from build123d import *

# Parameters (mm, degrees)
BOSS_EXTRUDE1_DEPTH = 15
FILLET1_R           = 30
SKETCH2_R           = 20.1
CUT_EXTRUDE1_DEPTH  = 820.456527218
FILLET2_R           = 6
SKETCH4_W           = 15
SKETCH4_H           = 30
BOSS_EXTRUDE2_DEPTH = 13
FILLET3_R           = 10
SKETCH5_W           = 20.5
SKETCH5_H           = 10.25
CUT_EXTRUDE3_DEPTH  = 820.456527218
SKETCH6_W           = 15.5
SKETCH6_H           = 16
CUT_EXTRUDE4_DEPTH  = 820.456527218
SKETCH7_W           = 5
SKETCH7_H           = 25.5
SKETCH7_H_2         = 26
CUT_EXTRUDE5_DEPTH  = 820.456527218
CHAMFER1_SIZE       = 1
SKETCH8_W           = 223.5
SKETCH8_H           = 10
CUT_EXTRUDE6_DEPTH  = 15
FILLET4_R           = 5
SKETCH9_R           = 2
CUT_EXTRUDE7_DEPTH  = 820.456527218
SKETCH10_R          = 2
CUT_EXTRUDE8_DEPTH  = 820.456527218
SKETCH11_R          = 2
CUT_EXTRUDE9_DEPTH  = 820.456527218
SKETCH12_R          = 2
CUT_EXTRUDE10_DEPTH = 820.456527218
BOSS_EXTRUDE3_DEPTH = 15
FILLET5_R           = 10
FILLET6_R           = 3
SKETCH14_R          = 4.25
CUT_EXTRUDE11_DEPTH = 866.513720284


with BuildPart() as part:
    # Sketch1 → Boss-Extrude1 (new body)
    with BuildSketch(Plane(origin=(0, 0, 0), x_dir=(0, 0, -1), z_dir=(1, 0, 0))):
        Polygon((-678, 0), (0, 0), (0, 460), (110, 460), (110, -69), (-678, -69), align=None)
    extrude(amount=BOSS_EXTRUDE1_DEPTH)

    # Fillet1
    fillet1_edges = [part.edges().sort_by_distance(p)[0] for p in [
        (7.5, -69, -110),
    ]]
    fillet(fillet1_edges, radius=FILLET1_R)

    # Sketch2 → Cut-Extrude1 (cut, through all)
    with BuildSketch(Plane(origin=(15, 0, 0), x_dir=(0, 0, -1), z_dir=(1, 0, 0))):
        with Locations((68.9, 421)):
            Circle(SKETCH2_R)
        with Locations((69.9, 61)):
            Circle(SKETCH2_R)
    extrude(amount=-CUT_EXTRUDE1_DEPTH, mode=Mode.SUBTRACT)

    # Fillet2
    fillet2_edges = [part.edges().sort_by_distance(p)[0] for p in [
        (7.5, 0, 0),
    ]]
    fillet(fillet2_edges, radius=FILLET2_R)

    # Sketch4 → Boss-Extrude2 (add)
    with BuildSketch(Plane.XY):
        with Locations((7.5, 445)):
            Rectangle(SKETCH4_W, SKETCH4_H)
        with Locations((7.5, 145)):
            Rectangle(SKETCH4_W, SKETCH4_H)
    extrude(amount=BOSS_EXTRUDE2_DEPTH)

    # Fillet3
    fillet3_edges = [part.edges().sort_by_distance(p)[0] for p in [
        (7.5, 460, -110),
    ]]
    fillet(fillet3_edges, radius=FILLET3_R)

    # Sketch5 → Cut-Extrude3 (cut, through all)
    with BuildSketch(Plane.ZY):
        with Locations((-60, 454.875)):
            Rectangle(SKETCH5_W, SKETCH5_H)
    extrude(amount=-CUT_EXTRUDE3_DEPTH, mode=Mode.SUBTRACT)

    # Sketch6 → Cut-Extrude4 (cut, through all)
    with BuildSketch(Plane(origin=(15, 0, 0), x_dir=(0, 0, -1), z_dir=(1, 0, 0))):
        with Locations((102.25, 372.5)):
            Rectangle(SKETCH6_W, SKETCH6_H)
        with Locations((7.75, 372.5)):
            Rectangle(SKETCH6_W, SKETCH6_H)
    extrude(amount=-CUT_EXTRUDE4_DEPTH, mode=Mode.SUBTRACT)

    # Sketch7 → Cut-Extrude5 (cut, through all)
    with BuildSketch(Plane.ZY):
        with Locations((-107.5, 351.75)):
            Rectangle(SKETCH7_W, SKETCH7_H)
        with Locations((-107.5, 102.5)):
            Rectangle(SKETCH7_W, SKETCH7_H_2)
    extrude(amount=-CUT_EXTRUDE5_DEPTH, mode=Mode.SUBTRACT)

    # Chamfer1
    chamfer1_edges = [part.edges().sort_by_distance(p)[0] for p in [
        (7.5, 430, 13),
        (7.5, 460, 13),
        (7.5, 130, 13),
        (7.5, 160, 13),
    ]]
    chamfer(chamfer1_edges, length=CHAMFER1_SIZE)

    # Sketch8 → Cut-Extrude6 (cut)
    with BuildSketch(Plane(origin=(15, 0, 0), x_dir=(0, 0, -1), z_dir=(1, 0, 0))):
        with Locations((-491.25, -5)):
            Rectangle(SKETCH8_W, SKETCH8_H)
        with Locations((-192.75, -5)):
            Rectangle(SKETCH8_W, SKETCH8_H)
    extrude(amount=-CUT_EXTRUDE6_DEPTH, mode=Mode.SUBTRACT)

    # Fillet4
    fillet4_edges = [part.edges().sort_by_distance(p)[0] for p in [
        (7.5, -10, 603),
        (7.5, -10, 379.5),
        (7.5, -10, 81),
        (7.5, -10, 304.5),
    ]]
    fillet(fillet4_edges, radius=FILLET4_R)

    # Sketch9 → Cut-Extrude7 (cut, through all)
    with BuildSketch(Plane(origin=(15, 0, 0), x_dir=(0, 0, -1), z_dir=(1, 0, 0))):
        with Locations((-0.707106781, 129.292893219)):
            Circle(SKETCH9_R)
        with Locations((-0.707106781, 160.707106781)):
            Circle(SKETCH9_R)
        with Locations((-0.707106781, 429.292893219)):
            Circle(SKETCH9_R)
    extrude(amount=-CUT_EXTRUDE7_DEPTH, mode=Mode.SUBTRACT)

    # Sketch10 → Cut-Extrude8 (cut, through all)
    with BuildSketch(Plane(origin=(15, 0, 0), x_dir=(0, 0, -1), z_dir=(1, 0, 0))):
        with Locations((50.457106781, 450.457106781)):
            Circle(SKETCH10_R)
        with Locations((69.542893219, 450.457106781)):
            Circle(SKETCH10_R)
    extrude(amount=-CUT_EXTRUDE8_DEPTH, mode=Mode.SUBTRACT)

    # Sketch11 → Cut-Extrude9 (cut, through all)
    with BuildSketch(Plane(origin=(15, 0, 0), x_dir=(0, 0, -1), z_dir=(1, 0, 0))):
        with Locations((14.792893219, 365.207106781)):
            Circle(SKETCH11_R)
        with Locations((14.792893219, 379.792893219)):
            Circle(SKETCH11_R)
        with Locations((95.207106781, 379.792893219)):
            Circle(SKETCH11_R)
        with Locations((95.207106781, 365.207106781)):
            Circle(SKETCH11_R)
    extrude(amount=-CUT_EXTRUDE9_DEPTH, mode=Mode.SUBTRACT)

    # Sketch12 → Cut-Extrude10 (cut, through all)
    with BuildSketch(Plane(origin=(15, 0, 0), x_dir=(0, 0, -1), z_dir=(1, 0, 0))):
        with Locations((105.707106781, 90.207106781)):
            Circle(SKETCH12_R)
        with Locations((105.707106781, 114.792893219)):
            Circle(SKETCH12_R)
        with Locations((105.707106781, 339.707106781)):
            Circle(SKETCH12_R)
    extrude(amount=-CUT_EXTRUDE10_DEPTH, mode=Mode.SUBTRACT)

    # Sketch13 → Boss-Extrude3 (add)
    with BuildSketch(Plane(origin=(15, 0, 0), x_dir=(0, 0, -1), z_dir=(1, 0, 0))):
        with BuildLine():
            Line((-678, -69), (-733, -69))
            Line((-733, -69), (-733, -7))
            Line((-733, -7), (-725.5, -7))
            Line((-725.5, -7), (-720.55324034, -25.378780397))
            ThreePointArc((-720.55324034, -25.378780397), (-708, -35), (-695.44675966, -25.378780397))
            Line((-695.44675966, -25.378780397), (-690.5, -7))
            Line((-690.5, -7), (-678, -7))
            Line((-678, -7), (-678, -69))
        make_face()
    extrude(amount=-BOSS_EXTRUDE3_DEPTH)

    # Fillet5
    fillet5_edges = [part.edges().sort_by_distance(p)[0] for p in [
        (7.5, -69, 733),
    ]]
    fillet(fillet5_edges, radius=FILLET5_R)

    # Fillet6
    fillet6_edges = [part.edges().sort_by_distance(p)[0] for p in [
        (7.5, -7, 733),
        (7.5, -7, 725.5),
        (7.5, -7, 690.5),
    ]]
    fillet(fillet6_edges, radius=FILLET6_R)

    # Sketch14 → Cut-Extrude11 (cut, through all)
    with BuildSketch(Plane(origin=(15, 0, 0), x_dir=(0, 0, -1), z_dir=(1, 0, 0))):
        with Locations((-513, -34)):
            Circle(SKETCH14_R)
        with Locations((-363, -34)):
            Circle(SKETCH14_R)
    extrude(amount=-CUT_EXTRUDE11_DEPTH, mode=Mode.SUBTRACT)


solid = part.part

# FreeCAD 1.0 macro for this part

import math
import FreeCAD as App
import Part
import Sketcher
from FreeCAD import Vector
Q = App.Units.Quantity


def edges_at(feature, points):
    """Names of the edges that pass closest to the given points."""
    edges = feature.Shape.Edges
    near = lambda p: min(range(len(edges)), key=lambda i: edges[i].distToShape(Part.Vertex(*p))[0])
    return sorted({f"Edge{near(p) + 1}" for p in points})


def add_polygon(sketch, points):
    """Adds a closed chain of lines whose ends are joined by coincident constraints."""
    first, n = sketch.GeometryCount, len(points)
    for a, b in zip(points, points[1:] + points[:1]):
        sketch.addGeometry(Part.LineSegment(App.Vector(*a, 0), App.Vector(*b, 0)), False)
    for i in range(n):
        sketch.addConstraint(Sketcher.Constraint("Coincident", first + i, 2, first + (i + 1) % n, 1))

doc = App.newDocument("Part")
params = doc.addObject("Spreadsheet::Sheet", "Params")
for row, (alias, value) in enumerate([
    ("sketch1_width", "69 mm"),
    ("sketch1_width2", "529 mm"),
    ("sketch1_height", "678 mm"),
    ("sketch1_height2", "788 mm"),
    ("pad1_length", "15 mm"),
    ("fillet_radius", "30 mm"),
    ("sketch2_diameter", "40.2 mm"),
    ("fillet2_radius", "6 mm"),
    ("sketch3_width", "15 mm"),
    ("sketch3_height", "30 mm"),
    ("pad2_length", "13 mm"),
    ("fillet3_radius", "10 mm"),
    ("sketch4_height", "20.5 mm"),
    ("sketch4_width", "10.25 mm"),
    ("sketch5_width", "16 mm"),
    ("sketch5_height", "15.5 mm"),
    ("sketch6_width", "26 mm"),
    ("sketch6_height", "5 mm"),
    ("sketch6_width2", "25.5 mm"),
    ("chamfer_size", "1 mm"),
    ("sketch7_width", "10 mm"),
    ("sketch7_height", "223.5 mm"),
    ("pocket5_length", "15 mm"),
    ("fillet4_radius", "5 mm"),
    ("sketch8_diameter", "4 mm"),
    ("sketch9_diameter", "4 mm"),
    ("sketch10_diameter", "4 mm"),
    ("sketch11_diameter", "4 mm"),
    ("sketch12_radius", "13 mm"),
    ("sketch12_width", "62 mm"),
    ("sketch12_height", "55 mm"),
    ("sketch12_height2", "12.5 mm"),
    ("sketch12_height3", "7.5 mm"),
    ("pad3_length", "15 mm"),
    ("fillet5_radius", "10 mm"),
    ("fillet6_radius", "3 mm"),
    ("sketch13_diameter", "8.5 mm"),
], start=1):
    params.set(f"A{row}", alias)
    params.set(f"B{row}", "=" + value)
    params.setAlias(f"B{row}", alias)

body = doc.addObject("PartDesign::Body", "Body")

sketch1 = body.newObject("Sketcher::SketchObject", "Sketch")
sketch1.AttachmentSupport = (doc.getObject("YZ_Plane"), [""])
sketch1.MapMode = "FlatFace"
add_polygon(sketch1, [(0, 0), (0, 678), (-69, 678), (-69, -110), (460, -110), (460, 0)])
sketch1.addConstraint(Sketcher.Constraint("Vertical", 0))
sketch1.addConstraint(Sketcher.Constraint("Horizontal", 1))
sketch1.addConstraint(Sketcher.Constraint("Vertical", 2))
sketch1.addConstraint(Sketcher.Constraint("Horizontal", 3))
sketch1.addConstraint(Sketcher.Constraint("Vertical", 4))
sketch1.addConstraint(Sketcher.Constraint("Horizontal", 5))
sketch1.addConstraint(Sketcher.Constraint("Coincident", 5, 2, -1, 1))
sketch1.addConstraint(Sketcher.Constraint("DistanceX", 1, 2, 1, 1, Q("69 mm")))
sketch1.addConstraint(Sketcher.Constraint("DistanceX", 3, 1, 3, 2, Q("529 mm")))
sketch1.addConstraint(Sketcher.Constraint("DistanceY", 0, 1, 0, 2, Q("678 mm")))
sketch1.addConstraint(Sketcher.Constraint("DistanceY", 2, 2, 2, 1, Q("788 mm")))
sketch1.setExpression("Constraints[13]", "Params.sketch1_width")
sketch1.setExpression("Constraints[14]", "Params.sketch1_width2")
sketch1.setExpression("Constraints[15]", "Params.sketch1_height")
sketch1.setExpression("Constraints[16]", "Params.sketch1_height2")
pad1 = body.newObject("PartDesign::Pad", "Pad")
pad1.Profile = sketch1
pad1.setExpression("Length", "Params.pad1_length")
doc.recompute()

fillet = body.newObject("PartDesign::Fillet", "Fillet")
fillet.Base = (pad1, edges_at(pad1, [(7.5, -69, -110)]))
fillet.setExpression("Radius", "Params.fillet_radius")

sketch2 = body.newObject("Sketcher::SketchObject", "Sketch001")
sketch2.AttachmentSupport = (doc.getObject("YZ_Plane"), [""])
sketch2.MapMode = "FlatFace"
sketch2.AttachmentOffset = App.Placement(Vector(0, 0, 15), App.Rotation())
sketch2.addGeometry(Part.Circle(Vector(421, -69, 0), Vector(0, 0, 1), 20), False)
sketch2.addGeometry(Part.Circle(Vector(61, -70, 0), Vector(0, 0, 1), 20), False)
sketch2.addConstraint(Sketcher.Constraint("Equal", 0, 1))
sketch2.addConstraint(Sketcher.Constraint("Diameter", 0, Q("40.2 mm")))
sketch2.addConstraint(Sketcher.Constraint("DistanceX", -1, 1, 0, 3, Q("421 mm")))
sketch2.addConstraint(Sketcher.Constraint("DistanceX", -1, 1, 1, 3, Q("61 mm")))
sketch2.addConstraint(Sketcher.Constraint("DistanceY", 1, 3, 0, 3, Q("1 mm")))
sketch2.addConstraint(Sketcher.Constraint("DistanceY", 0, 3, -1, 1, Q("68.9 mm")))
sketch2.setExpression("Constraints[1]", "Params.sketch2_diameter")
pocket1 = body.newObject("PartDesign::Pocket", "Pocket")
pocket1.Profile = sketch2
pocket1.Type = "ThroughAll"
doc.recompute()

fillet2 = body.newObject("PartDesign::Fillet", "Fillet001")
fillet2.Base = (pocket1, edges_at(pocket1, [(7.5, 0, 0)]))
fillet2.setExpression("Radius", "Params.fillet2_radius")

sketch3 = body.newObject("Sketcher::SketchObject", "Sketch002")
sketch3.AttachmentSupport = (doc.getObject("XY_Plane"), [""])
sketch3.MapMode = "FlatFace"
add_polygon(sketch3, [(0, 460), (0, 430), (15, 430), (15, 460)])
add_polygon(sketch3, [(0, 160), (0, 130), (15, 130), (15, 160)])
sketch3.addConstraint(Sketcher.Constraint("Vertical", 0))
sketch3.addConstraint(Sketcher.Constraint("Horizontal", 1))
sketch3.addConstraint(Sketcher.Constraint("Vertical", 2))
sketch3.addConstraint(Sketcher.Constraint("Horizontal", 3))
sketch3.addConstraint(Sketcher.Constraint("Vertical", 4))
sketch3.addConstraint(Sketcher.Constraint("Horizontal", 5))
sketch3.addConstraint(Sketcher.Constraint("Vertical", 6))
sketch3.addConstraint(Sketcher.Constraint("Horizontal", 7))
sketch3.addConstraint(Sketcher.Constraint("PointOnObject", 0, 2, -2))
sketch3.addConstraint(Sketcher.Constraint("PointOnObject", 4, 2, -2))
sketch3.addConstraint(Sketcher.Constraint("Vertical", 2, 2, 5, 2))
sketch3.addConstraint(Sketcher.Constraint("Equal", 2, 4))
sketch3.addConstraint(Sketcher.Constraint("DistanceX", 1, 1, 1, 2, Q("15 mm")))
sketch3.addConstraint(Sketcher.Constraint("DistanceY", 0, 2, 0, 1, Q("30 mm")))
sketch3.addConstraint(Sketcher.Constraint("DistanceY", -1, 1, 0, 2, Q("430 mm")))
sketch3.addConstraint(Sketcher.Constraint("DistanceY", -1, 1, 4, 2, Q("130 mm")))
sketch3.setExpression("Constraints[20]", "Params.sketch3_width")
sketch3.setExpression("Constraints[21]", "Params.sketch3_height")
pad2 = body.newObject("PartDesign::Pad", "Pad001")
pad2.Profile = sketch3
pad2.setExpression("Length", "Params.pad2_length")
doc.recompute()

fillet3 = body.newObject("PartDesign::Fillet", "Fillet002")
fillet3.Base = (pad2, edges_at(pad2, [(7.5, 460, -110)]))
fillet3.setExpression("Radius", "Params.fillet3_radius")

sketch4 = body.newObject("Sketcher::SketchObject", "Sketch003")
sketch4.AttachmentSupport = (doc.getObject("YZ_Plane"), [""])
sketch4.MapMode = "FlatFace"
add_polygon(sketch4, [(460, -70), (450, -70), (450, -50), (460, -50)])
sketch4.addConstraint(Sketcher.Constraint("Horizontal", 0))
sketch4.addConstraint(Sketcher.Constraint("Vertical", 1))
sketch4.addConstraint(Sketcher.Constraint("Horizontal", 2))
sketch4.addConstraint(Sketcher.Constraint("Vertical", 3))
sketch4.addConstraint(Sketcher.Constraint("DistanceY", 1, 1, 1, 2, Q("20.5 mm")))
sketch4.addConstraint(Sketcher.Constraint("DistanceX", -1, 1, 2, 2, Q("460 mm")))
sketch4.addConstraint(Sketcher.Constraint("DistanceX", 0, 2, 0, 1, Q("10.25 mm")))
sketch4.addConstraint(Sketcher.Constraint("DistanceY", 0, 2, -1, 1, Q("70.25 mm")))
sketch4.setExpression("Constraints[8]", "Params.sketch4_height")
sketch4.setExpression("Constraints[10]", "Params.sketch4_width")
pocket2 = body.newObject("PartDesign::Pocket", "Pocket001")
pocket2.Profile = sketch4
pocket2.Type = "ThroughAll"
pocket2.Reversed = True

sketch5 = body.newObject("Sketcher::SketchObject", "Sketch004")
sketch5.AttachmentSupport = (doc.getObject("YZ_Plane"), [""])
sketch5.MapMode = "FlatFace"
sketch5.AttachmentOffset = App.Placement(Vector(0, 0, 15), App.Rotation())
add_polygon(sketch5, [(380, -94), (364, -94), (364, -110), (380, -110)])
add_polygon(sketch5, [(380, 0), (364, 0), (364, -16), (380, -16)])
sketch5.addConstraint(Sketcher.Constraint("Horizontal", 0))
sketch5.addConstraint(Sketcher.Constraint("Vertical", 1))
sketch5.addConstraint(Sketcher.Constraint("Horizontal", 2))
sketch5.addConstraint(Sketcher.Constraint("Vertical", 3))
sketch5.addConstraint(Sketcher.Constraint("Horizontal", 4))
sketch5.addConstraint(Sketcher.Constraint("Vertical", 5))
sketch5.addConstraint(Sketcher.Constraint("Horizontal", 6))
sketch5.addConstraint(Sketcher.Constraint("Vertical", 7))
sketch5.addConstraint(Sketcher.Constraint("PointOnObject", 4, 2, -1))
sketch5.addConstraint(Sketcher.Constraint("Vertical", 1, 2, 4, 2))
sketch5.addConstraint(Sketcher.Constraint("Vertical", 3, 2, 6, 2))
sketch5.addConstraint(Sketcher.Constraint("Equal", 3, 5))
sketch5.addConstraint(Sketcher.Constraint("DistanceX", 0, 2, 0, 1, Q("16 mm")))
sketch5.addConstraint(Sketcher.Constraint("DistanceY", 1, 2, 1, 1, Q("15.5 mm")))
sketch5.addConstraint(Sketcher.Constraint("DistanceY", 1, 2, -1, 1, Q("110 mm")))
sketch5.addConstraint(Sketcher.Constraint("DistanceX", -1, 1, 0, 2, Q("364.5 mm")))
sketch5.setExpression("Constraints[20]", "Params.sketch5_width")
sketch5.setExpression("Constraints[21]", "Params.sketch5_height")
pocket3 = body.newObject("PartDesign::Pocket", "Pocket002")
pocket3.Profile = sketch5
pocket3.Type = "ThroughAll"

sketch6 = body.newObject("Sketcher::SketchObject", "Sketch005")
sketch6.AttachmentSupport = (doc.getObject("YZ_Plane"), [""])
sketch6.MapMode = "FlatFace"
add_polygon(sketch6, [(364, -110), (339, -110), (339, -105), (364, -105)])
add_polygon(sketch6, [(116, -110), (90, -110), (90, -105), (116, -105)])
sketch6.addConstraint(Sketcher.Constraint("Horizontal", 0))
sketch6.addConstraint(Sketcher.Constraint("Vertical", 1))
sketch6.addConstraint(Sketcher.Constraint("Horizontal", 2))
sketch6.addConstraint(Sketcher.Constraint("Vertical", 3))
sketch6.addConstraint(Sketcher.Constraint("Horizontal", 4))
sketch6.addConstraint(Sketcher.Constraint("Vertical", 5))
sketch6.addConstraint(Sketcher.Constraint("Horizontal", 6))
sketch6.addConstraint(Sketcher.Constraint("Vertical", 7))
sketch6.addConstraint(Sketcher.Constraint("Horizontal", 3, 2, 4, 2))
sketch6.addConstraint(Sketcher.Constraint("Horizontal", 2, 2, 5, 2))
sketch6.addConstraint(Sketcher.Constraint("DistanceX", 4, 2, 4, 1, Q("26 mm")))
sketch6.addConstraint(Sketcher.Constraint("DistanceY", 1, 1, 1, 2, Q("5 mm")))
sketch6.addConstraint(Sketcher.Constraint("DistanceX", 0, 2, 0, 1, Q("25.5 mm")))
sketch6.addConstraint(Sketcher.Constraint("DistanceX", -1, 1, 0, 2, Q("339 mm")))
sketch6.addConstraint(Sketcher.Constraint("DistanceY", 0, 2, -1, 1, Q("110 mm")))
sketch6.addConstraint(Sketcher.Constraint("DistanceX", 4, 2, 3, 2, Q("275 mm")))
sketch6.setExpression("Constraints[18]", "Params.sketch6_width")
sketch6.setExpression("Constraints[19]", "Params.sketch6_height")
sketch6.setExpression("Constraints[20]", "Params.sketch6_width2")
pocket4 = body.newObject("PartDesign::Pocket", "Pocket003")
pocket4.Profile = sketch6
pocket4.Type = "ThroughAll"
pocket4.Reversed = True
doc.recompute()

chamfer = body.newObject("PartDesign::Chamfer", "Chamfer")
chamfer.Base = (pocket4, edges_at(pocket4, [
    (7.5, 430, 13),
    (7.5, 460, 13),
    (7.5, 130, 13),
    (7.5, 160, 13),
]))
chamfer.setExpression("Size", "Params.chamfer_size")

sketch7 = body.newObject("Sketcher::SketchObject", "Sketch006")
sketch7.AttachmentSupport = (doc.getObject("YZ_Plane"), [""])
sketch7.MapMode = "FlatFace"
sketch7.AttachmentOffset = App.Placement(Vector(0, 0, 15), App.Rotation())
add_polygon(sketch7, [(0, 603), (-10, 603), (-10, 380), (0, 380)])
add_polygon(sketch7, [(0, 304), (-10, 304), (-10, 81), (0, 81)])
sketch7.addConstraint(Sketcher.Constraint("Horizontal", 0))
sketch7.addConstraint(Sketcher.Constraint("Vertical", 1))
sketch7.addConstraint(Sketcher.Constraint("Horizontal", 2))
sketch7.addConstraint(Sketcher.Constraint("Vertical", 3))
sketch7.addConstraint(Sketcher.Constraint("Horizontal", 4))
sketch7.addConstraint(Sketcher.Constraint("Vertical", 5))
sketch7.addConstraint(Sketcher.Constraint("Horizontal", 6))
sketch7.addConstraint(Sketcher.Constraint("Vertical", 7))
sketch7.addConstraint(Sketcher.Constraint("PointOnObject", 2, 2, -2))
sketch7.addConstraint(Sketcher.Constraint("PointOnObject", 6, 2, -2))
sketch7.addConstraint(Sketcher.Constraint("Vertical", 1, 2, 4, 2))
sketch7.addConstraint(Sketcher.Constraint("Equal", 3, 5))
sketch7.addConstraint(Sketcher.Constraint("DistanceX", 0, 2, 0, 1, Q("10 mm")))
sketch7.addConstraint(Sketcher.Constraint("DistanceY", 1, 2, 1, 1, Q("223.5 mm")))
sketch7.addConstraint(Sketcher.Constraint("DistanceY", -1, 1, 0, 2, Q("603 mm")))
sketch7.addConstraint(Sketcher.Constraint("DistanceY", -1, 1, 5, 2, Q("81 mm")))
sketch7.setExpression("Constraints[20]", "Params.sketch7_width")
sketch7.setExpression("Constraints[21]", "Params.sketch7_height")
pocket5 = body.newObject("PartDesign::Pocket", "Pocket004")
pocket5.Profile = sketch7
pocket5.setExpression("Length", "Params.pocket5_length")
doc.recompute()

fillet4 = body.newObject("PartDesign::Fillet", "Fillet003")
fillet4.Base = (pocket5, edges_at(pocket5, [
    (7.5, -10, 603),
    (7.5, -10, 379.5),
    (7.5, -10, 81),
    (7.5, -10, 304.5),
]))
fillet4.setExpression("Radius", "Params.fillet4_radius")

sketch8 = body.newObject("Sketcher::SketchObject", "Sketch007")
sketch8.AttachmentSupport = (doc.getObject("YZ_Plane"), [""])
sketch8.MapMode = "FlatFace"
sketch8.AttachmentOffset = App.Placement(Vector(0, 0, 15), App.Rotation())
sketch8.addGeometry(Part.Circle(Vector(129.3, 0.7, 0), Vector(0, 0, 1), 2), False)
sketch8.addGeometry(Part.Circle(Vector(160.7, 0.7, 0), Vector(0, 0, 1), 2), False)
sketch8.addGeometry(Part.Circle(Vector(429.3, 0.7, 0), Vector(0, 0, 1), 2), False)
sketch8.addConstraint(Sketcher.Constraint("Equal", 0, 1))
sketch8.addConstraint(Sketcher.Constraint("Equal", 1, 2))
sketch8.addConstraint(Sketcher.Constraint("Horizontal", 0, 3, 1, 3))
sketch8.addConstraint(Sketcher.Constraint("Horizontal", 1, 3, 2, 3))
sketch8.addConstraint(Sketcher.Constraint("Diameter", 0, Q("4 mm")))
sketch8.addConstraint(Sketcher.Constraint("DistanceX", 0, 3, 2, 3, Q("300 mm")))
sketch8.addConstraint(Sketcher.Constraint("DistanceX", -1, 1, 0, 3, Q("129.292893 mm")))
sketch8.addConstraint(Sketcher.Constraint("DistanceY", -1, 1, 0, 3, Q("0.707107 mm")))
sketch8.addConstraint(Sketcher.Constraint("DistanceX", -1, 1, 1, 3, Q("160.707107 mm")))
sketch8.setExpression("Constraints[4]", "Params.sketch8_diameter")
pocket6 = body.newObject("PartDesign::Pocket", "Pocket005")
pocket6.Profile = sketch8
pocket6.Type = "ThroughAll"

sketch9 = body.newObject("Sketcher::SketchObject", "Sketch008")
sketch9.AttachmentSupport = (doc.getObject("YZ_Plane"), [""])
sketch9.MapMode = "FlatFace"
sketch9.AttachmentOffset = App.Placement(Vector(0, 0, 15), App.Rotation())
sketch9.addGeometry(Part.Circle(Vector(450.5, -50.5, 0), Vector(0, 0, 1), 2), False)
sketch9.addGeometry(Part.Circle(Vector(450.5, -69.5, 0), Vector(0, 0, 1), 2), False)
sketch9.addConstraint(Sketcher.Constraint("Equal", 0, 1))
sketch9.addConstraint(Sketcher.Constraint("Vertical", 0, 3, 1, 3))
sketch9.addConstraint(Sketcher.Constraint("Diameter", 0, Q("4 mm")))
sketch9.addConstraint(Sketcher.Constraint("DistanceX", -1, 1, 0, 3, Q("450.457107 mm")))
sketch9.addConstraint(Sketcher.Constraint("DistanceY", 0, 3, -1, 1, Q("50.457107 mm")))
sketch9.addConstraint(Sketcher.Constraint("DistanceY", 1, 3, -1, 1, Q("69.542893 mm")))
sketch9.setExpression("Constraints[2]", "Params.sketch9_diameter")
pocket7 = body.newObject("PartDesign::Pocket", "Pocket006")
pocket7.Profile = sketch9
pocket7.Type = "ThroughAll"

sketch10 = body.newObject("Sketcher::SketchObject", "Sketch009")
sketch10.AttachmentSupport = (doc.getObject("YZ_Plane"), [""])
sketch10.MapMode = "FlatFace"
sketch10.AttachmentOffset = App.Placement(Vector(0, 0, 15), App.Rotation())
sketch10.addGeometry(Part.Circle(Vector(365.2, -14.8, 0), Vector(0, 0, 1), 2), False)
sketch10.addGeometry(Part.Circle(Vector(379.8, -14.8, 0), Vector(0, 0, 1), 2), False)
sketch10.addGeometry(Part.Circle(Vector(379.8, -95.2, 0), Vector(0, 0, 1), 2), False)
sketch10.addGeometry(Part.Circle(Vector(365.2, -95.2, 0), Vector(0, 0, 1), 2), False)
sketch10.addConstraint(Sketcher.Constraint("Equal", 0, 1))
sketch10.addConstraint(Sketcher.Constraint("Equal", 1, 2))
sketch10.addConstraint(Sketcher.Constraint("Equal", 2, 3))
sketch10.addConstraint(Sketcher.Constraint("Horizontal", 0, 3, 1, 3))
sketch10.addConstraint(Sketcher.Constraint("Horizontal", 2, 3, 3, 3))
sketch10.addConstraint(Sketcher.Constraint("Vertical", 1, 3, 2, 3))
sketch10.addConstraint(Sketcher.Constraint("Vertical", 0, 3, 3, 3))
sketch10.addConstraint(Sketcher.Constraint("Diameter", 0, Q("4 mm")))
sketch10.addConstraint(Sketcher.Constraint("DistanceX", -1, 1, 0, 3, Q("365.207107 mm")))
sketch10.addConstraint(Sketcher.Constraint("DistanceY", 0, 3, -1, 1, Q("14.792893 mm")))
sketch10.addConstraint(Sketcher.Constraint("DistanceX", -1, 1, 1, 3, Q("379.792893 mm")))
sketch10.addConstraint(Sketcher.Constraint("DistanceY", 2, 3, -1, 1, Q("95.207107 mm")))
sketch10.setExpression("Constraints[7]", "Params.sketch10_diameter")
pocket8 = body.newObject("PartDesign::Pocket", "Pocket007")
pocket8.Profile = sketch10
pocket8.Type = "ThroughAll"

sketch11 = body.newObject("Sketcher::SketchObject", "Sketch010")
sketch11.AttachmentSupport = (doc.getObject("YZ_Plane"), [""])
sketch11.MapMode = "FlatFace"
sketch11.AttachmentOffset = App.Placement(Vector(0, 0, 15), App.Rotation())
sketch11.addGeometry(Part.Circle(Vector(90.2, -105.7, 0), Vector(0, 0, 1), 2), False)
sketch11.addGeometry(Part.Circle(Vector(114.8, -105.7, 0), Vector(0, 0, 1), 2), False)
sketch11.addGeometry(Part.Circle(Vector(339.7, -105.7, 0), Vector(0, 0, 1), 2), False)
sketch11.addConstraint(Sketcher.Constraint("Equal", 0, 1))
sketch11.addConstraint(Sketcher.Constraint("Equal", 1, 2))
sketch11.addConstraint(Sketcher.Constraint("Horizontal", 0, 3, 1, 3))
sketch11.addConstraint(Sketcher.Constraint("Horizontal", 1, 3, 2, 3))
sketch11.addConstraint(Sketcher.Constraint("Diameter", 0, Q("4 mm")))
sketch11.addConstraint(Sketcher.Constraint("DistanceX", 0, 3, 2, 3, Q("249.5 mm")))
sketch11.addConstraint(Sketcher.Constraint("DistanceX", -1, 1, 0, 3, Q("90.207107 mm")))
sketch11.addConstraint(Sketcher.Constraint("DistanceY", 0, 3, -1, 1, Q("105.707107 mm")))
sketch11.addConstraint(Sketcher.Constraint("DistanceX", -1, 1, 1, 3, Q("114.792893 mm")))
sketch11.setExpression("Constraints[4]", "Params.sketch11_diameter")
pocket9 = body.newObject("PartDesign::Pocket", "Pocket008")
pocket9.Profile = sketch11
pocket9.Type = "ThroughAll"

sketch12 = body.newObject("Sketcher::SketchObject", "Sketch011")
sketch12.AttachmentSupport = (doc.getObject("YZ_Plane"), [""])
sketch12.MapMode = "FlatFace"
sketch12.AttachmentOffset = App.Placement(Vector(0, 0, 15), App.Rotation())
sketch12.addGeometry(Part.LineSegment(Vector(-69, 733, 0), Vector(-69, 678, 0)), False)
sketch12.addGeometry(Part.LineSegment(Vector(-69, 678, 0), Vector(-7, 678, 0)), False)
sketch12.addGeometry(Part.LineSegment(Vector(-7, 678, 0), Vector(-7, 690, 0)), False)
sketch12.addGeometry(Part.LineSegment(Vector(-7, 690, 0), Vector(-25, 695, 0)), False)
sketch12.addGeometry(Part.ArcOfCircle(Part.Circle(Vector(-22, 708, 0), Vector(0, 0, 1), 13), math.radians(105), math.radians(255)), False)
sketch12.addGeometry(Part.LineSegment(Vector(-25, 721, 0), Vector(-7, 726, 0)), False)
sketch12.addGeometry(Part.LineSegment(Vector(-7, 726, 0), Vector(-7, 733, 0)), False)
sketch12.addGeometry(Part.LineSegment(Vector(-7, 733, 0), Vector(-69, 733, 0)), False)
sketch12.addConstraint(Sketcher.Constraint("Coincident", 0, 2, 1, 1))
sketch12.addConstraint(Sketcher.Constraint("Coincident", 1, 2, 2, 1))
sketch12.addConstraint(Sketcher.Constraint("Coincident", 2, 2, 3, 1))
sketch12.addConstraint(Sketcher.Constraint("Tangent", 3, 2, 4, 2))
sketch12.addConstraint(Sketcher.Constraint("Tangent", 4, 1, 5, 1))
sketch12.addConstraint(Sketcher.Constraint("Coincident", 5, 2, 6, 1))
sketch12.addConstraint(Sketcher.Constraint("Coincident", 6, 2, 7, 1))
sketch12.addConstraint(Sketcher.Constraint("Coincident", 7, 2, 0, 1))
sketch12.addConstraint(Sketcher.Constraint("Vertical", 0))
sketch12.addConstraint(Sketcher.Constraint("Horizontal", 1))
sketch12.addConstraint(Sketcher.Constraint("Vertical", 2))
sketch12.addConstraint(Sketcher.Constraint("Vertical", 6))
sketch12.addConstraint(Sketcher.Constraint("Horizontal", 7))
sketch12.addConstraint(Sketcher.Constraint("Vertical", 3, 2, 4, 1))
sketch12.addConstraint(Sketcher.Constraint("Vertical", 2, 2, 5, 2))
sketch12.addConstraint(Sketcher.Constraint("Radius", 4, Q("13 mm")))
sketch12.addConstraint(Sketcher.Constraint("DistanceX", 1, 1, 1, 2, Q("62 mm")))
sketch12.addConstraint(Sketcher.Constraint("DistanceY", 0, 2, 0, 1, Q("55 mm")))
sketch12.addConstraint(Sketcher.Constraint("DistanceY", 2, 1, 2, 2, Q("12.5 mm")))
sketch12.addConstraint(Sketcher.Constraint("DistanceY", 6, 1, 6, 2, Q("7.5 mm")))
sketch12.addConstraint(Sketcher.Constraint("DistanceX", 4, 3, -1, 1, Q("22 mm")))
sketch12.addConstraint(Sketcher.Constraint("DistanceY", -1, 1, 4, 3, Q("708 mm")))
sketch12.addConstraint(Sketcher.Constraint("DistanceX", 0, 2, -1, 1, Q("69 mm")))
sketch12.setExpression("Constraints[15]", "Params.sketch12_radius")
sketch12.setExpression("Constraints[16]", "Params.sketch12_width")
sketch12.setExpression("Constraints[17]", "Params.sketch12_height")
sketch12.setExpression("Constraints[18]", "Params.sketch12_height2")
sketch12.setExpression("Constraints[19]", "Params.sketch12_height3")
pad3 = body.newObject("PartDesign::Pad", "Pad002")
pad3.Profile = sketch12
pad3.setExpression("Length", "Params.pad3_length")
pad3.Reversed = True
doc.recompute()

fillet5 = body.newObject("PartDesign::Fillet", "Fillet004")
fillet5.Base = (pad3, edges_at(pad3, [(7.5, -69, 733)]))
fillet5.setExpression("Radius", "Params.fillet5_radius")
doc.recompute()

fillet6 = body.newObject("PartDesign::Fillet", "Fillet005")
fillet6.Base = (fillet5, edges_at(fillet5, [(7.5, -7, 733), (7.5, -7, 725.5), (7.5, -7, 690.5)]))
fillet6.setExpression("Radius", "Params.fillet6_radius")

sketch13 = body.newObject("Sketcher::SketchObject", "Sketch012")
sketch13.AttachmentSupport = (doc.getObject("YZ_Plane"), [""])
sketch13.MapMode = "FlatFace"
sketch13.AttachmentOffset = App.Placement(Vector(0, 0, 15), App.Rotation())
sketch13.addGeometry(Part.Circle(Vector(-34, 513, 0), Vector(0, 0, 1), 4.2), False)
sketch13.addGeometry(Part.Circle(Vector(-34, 363, 0), Vector(0, 0, 1), 4.2), False)
sketch13.addConstraint(Sketcher.Constraint("Equal", 0, 1))
sketch13.addConstraint(Sketcher.Constraint("Vertical", 0, 3, 1, 3))
sketch13.addConstraint(Sketcher.Constraint("Diameter", 0, Q("8.5 mm")))
sketch13.addConstraint(Sketcher.Constraint("DistanceX", 0, 3, -1, 1, Q("34 mm")))
sketch13.addConstraint(Sketcher.Constraint("DistanceY", -1, 1, 0, 3, Q("513 mm")))
sketch13.addConstraint(Sketcher.Constraint("DistanceY", -1, 1, 1, 3, Q("363 mm")))
sketch13.setExpression("Constraints[2]", "Params.sketch13_diameter")
pocket10 = body.newObject("PartDesign::Pocket", "Pocket009")
pocket10.Profile = sketch13
pocket10.Type = "ThroughAll"

doc.recompute()
